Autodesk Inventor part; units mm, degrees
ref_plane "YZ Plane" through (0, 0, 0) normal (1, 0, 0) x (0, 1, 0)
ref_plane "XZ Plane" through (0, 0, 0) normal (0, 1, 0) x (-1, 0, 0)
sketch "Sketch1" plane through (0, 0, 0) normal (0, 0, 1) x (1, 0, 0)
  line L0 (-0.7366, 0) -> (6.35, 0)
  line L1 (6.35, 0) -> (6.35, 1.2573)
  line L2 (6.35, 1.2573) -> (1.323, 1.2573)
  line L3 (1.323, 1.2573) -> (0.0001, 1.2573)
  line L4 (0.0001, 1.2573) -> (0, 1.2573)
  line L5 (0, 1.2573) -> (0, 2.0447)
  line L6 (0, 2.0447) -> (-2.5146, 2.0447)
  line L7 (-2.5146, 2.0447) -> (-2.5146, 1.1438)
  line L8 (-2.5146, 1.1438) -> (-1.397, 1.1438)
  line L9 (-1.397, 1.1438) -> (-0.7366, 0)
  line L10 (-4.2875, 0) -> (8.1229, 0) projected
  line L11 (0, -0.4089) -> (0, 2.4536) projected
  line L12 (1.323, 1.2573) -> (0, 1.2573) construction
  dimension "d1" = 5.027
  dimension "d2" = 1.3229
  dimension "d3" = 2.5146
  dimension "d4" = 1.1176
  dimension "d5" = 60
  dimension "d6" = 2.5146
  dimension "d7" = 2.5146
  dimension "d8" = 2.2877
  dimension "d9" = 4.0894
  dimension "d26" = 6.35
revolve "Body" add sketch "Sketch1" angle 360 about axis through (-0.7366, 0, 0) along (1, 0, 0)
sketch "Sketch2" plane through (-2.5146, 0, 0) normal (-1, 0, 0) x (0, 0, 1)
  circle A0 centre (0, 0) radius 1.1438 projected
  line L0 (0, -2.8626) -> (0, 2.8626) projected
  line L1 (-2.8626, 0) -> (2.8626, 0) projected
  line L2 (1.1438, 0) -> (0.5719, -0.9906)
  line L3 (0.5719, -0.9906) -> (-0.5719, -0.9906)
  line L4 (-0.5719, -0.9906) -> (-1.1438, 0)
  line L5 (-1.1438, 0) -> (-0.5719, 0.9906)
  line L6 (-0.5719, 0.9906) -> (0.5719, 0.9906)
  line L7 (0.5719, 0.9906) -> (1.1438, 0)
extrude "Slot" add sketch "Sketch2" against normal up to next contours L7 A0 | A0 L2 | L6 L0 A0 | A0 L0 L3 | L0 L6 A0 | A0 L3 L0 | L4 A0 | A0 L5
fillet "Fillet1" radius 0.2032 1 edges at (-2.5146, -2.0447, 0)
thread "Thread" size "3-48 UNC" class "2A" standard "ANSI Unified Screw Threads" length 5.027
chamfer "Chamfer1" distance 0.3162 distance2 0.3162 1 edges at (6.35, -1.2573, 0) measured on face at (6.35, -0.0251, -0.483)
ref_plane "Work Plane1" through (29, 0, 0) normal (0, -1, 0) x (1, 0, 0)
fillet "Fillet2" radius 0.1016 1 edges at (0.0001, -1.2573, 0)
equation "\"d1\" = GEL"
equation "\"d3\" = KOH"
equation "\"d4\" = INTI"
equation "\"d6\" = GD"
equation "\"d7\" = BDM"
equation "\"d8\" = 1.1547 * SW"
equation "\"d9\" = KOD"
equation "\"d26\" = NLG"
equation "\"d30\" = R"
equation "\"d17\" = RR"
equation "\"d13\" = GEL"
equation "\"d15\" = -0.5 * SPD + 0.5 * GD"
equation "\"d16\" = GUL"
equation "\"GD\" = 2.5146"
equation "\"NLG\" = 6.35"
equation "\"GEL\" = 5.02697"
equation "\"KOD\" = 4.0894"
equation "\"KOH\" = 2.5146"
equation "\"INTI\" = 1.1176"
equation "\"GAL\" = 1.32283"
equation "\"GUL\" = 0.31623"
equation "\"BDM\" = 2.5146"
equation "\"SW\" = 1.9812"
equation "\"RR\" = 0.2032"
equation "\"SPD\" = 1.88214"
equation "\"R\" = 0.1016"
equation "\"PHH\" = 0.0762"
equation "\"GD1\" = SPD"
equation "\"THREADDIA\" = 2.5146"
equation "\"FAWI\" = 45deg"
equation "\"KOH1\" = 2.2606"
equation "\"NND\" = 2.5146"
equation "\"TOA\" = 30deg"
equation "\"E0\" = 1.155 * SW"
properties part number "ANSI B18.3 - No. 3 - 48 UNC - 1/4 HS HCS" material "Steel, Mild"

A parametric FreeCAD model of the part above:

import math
import FreeCAD as App
import Part
import Sketcher
from FreeCAD import Vector
Q = App.Units.Quantity


def edges_at(feature, points):
    """Names of the edges that pass closest to the given points."""
    edges = feature.Shape.Edges
    near = lambda p: min(range(len(edges)), key=lambda i: edges[i].distToShape(Part.Vertex(*p))[0])
    return sorted({f"Edge{near(p) + 1}" for p in points})

doc = App.newDocument("Part")
body = doc.addObject("PartDesign::Body", "Body")

sketch1 = body.newObject("Sketcher::SketchObject", "Sketch")
sketch1.AttachmentSupport = (doc.getObject("XY_Plane"), [""])
sketch1.MapMode = "FlatFace"
sketch1.addGeometry([
    Part.LineSegment(Vector(-1.4, 1.1, 0), Vector(-0.7, 0, 0)),
    Part.LineSegment(Vector(-0.7, 0, 0), Vector(6.3, 0, 0)),
    Part.LineSegment(Vector(6.3, 0, 0), Vector(6.3, 1.3, 0)),
    Part.LineSegment(Vector(6.3, 1.3, 0), Vector(0, 1.3, 0)),
    Part.LineSegment(Vector(0, 1.3, 0), Vector(0, 2, 0)),
    Part.LineSegment(Vector(0, 2, 0), Vector(-2.5, 2, 0)),
    Part.LineSegment(Vector(-2.5, 2, 0), Vector(-2.5, 1.1, 0)),
    Part.LineSegment(Vector(-2.5, 1.1, 0), Vector(-1.4, 1.1, 0)),
], False)
sketch1.addConstraint([
    Sketcher.Constraint("Coincident", 0, 2, 1, 1),
    Sketcher.Constraint("Coincident", 1, 2, 2, 1),
    Sketcher.Constraint("Coincident", 2, 2, 3, 1),
    Sketcher.Constraint("Coincident", 3, 2, 4, 1),
    Sketcher.Constraint("Coincident", 4, 2, 5, 1),
    Sketcher.Constraint("Coincident", 5, 2, 6, 1),
    Sketcher.Constraint("Coincident", 6, 2, 7, 1),
    Sketcher.Constraint("Coincident", 7, 2, 0, 1),
    Sketcher.Constraint("Horizontal", 1),
    Sketcher.Constraint("Vertical", 2),
    Sketcher.Constraint("Horizontal", 3),
    Sketcher.Constraint("Vertical", 4),
    Sketcher.Constraint("Horizontal", 5),
    Sketcher.Constraint("Vertical", 6),
    Sketcher.Constraint("Horizontal", 7),
    Sketcher.Constraint("PointOnObject", 0, 2, -1),
    Sketcher.Constraint("PointOnObject", 3, 2, -2),
    Sketcher.Constraint("DistanceX", 3, 2, 3, 1, Q("0.25 in")),
    Sketcher.Constraint("DistanceX", 5, 2, 5, 1, Q("0.099 in")),
    Sketcher.Constraint("DistanceX", 7, 1, 7, 2, Q("0.044 in")),
    Sketcher.Constraint("Angle", 0, Q("-59.999 deg")),
    Sketcher.Constraint("DistanceX", 1, 1, 1, 2, Q("0.279 in")),
    Sketcher.Constraint("DistanceY", 4, 1, 4, 2, Q("0.031 in")),
    Sketcher.Constraint("DistanceY", 2, 1, 2, 2, Q("0.0495 in")),
])
revolution = body.newObject("PartDesign::Revolution", "Revolution")
revolution.Profile = sketch1
revolution.ReferenceAxis = (sketch1, ["H_Axis"])
revolution.Angle = 360

sketch2 = body.newObject("Sketcher::SketchObject", "Sketch001")
sketch2.AttachmentSupport = (doc.getObject("YZ_Plane"), [""])
sketch2.MapMode = "FlatFace"
sketch2.AttachmentOffset = App.Placement(Vector(0, 0, -0.099 * 25.4), App.Rotation())
sketch2.addGeometry([
    Part.LineSegment(Vector(1, 0.6, 0), Vector(0, 1.1, 0)),
    Part.ArcOfCircle(Part.Circle(Vector(0, 0, 0), Vector(0, 0, 1), 1.1), math.radians(30), math.radians(90)),
    Part.ArcOfCircle(Part.Circle(Vector(0, 0, 0), Vector(0, 0, 1), 1.1), math.radians(90), math.radians(150)),
    Part.LineSegment(Vector(0, 1.1, 0), Vector(-1, 0.6, 0)),
    Part.ArcOfCircle(Part.Circle(Vector(0, 0, 0), Vector(0, 0, 1), 1.1), math.radians(-30), math.radians(30)),
    Part.LineSegment(Vector(1, 0.6, 0), Vector(1, -0.6, 0)),
    Part.LineSegment(Vector(-1, 0.6, 0), Vector(-1, -0.6, 0)),
    Part.ArcOfCircle(Part.Circle(Vector(0, 0, 0), Vector(0, 0, 1), 1.1), math.radians(150), math.radians(210)),
    Part.LineSegment(Vector(-1, -0.6, 0), Vector(0, -1.1, 0)),
    Part.ArcOfCircle(Part.Circle(Vector(0, 0, 0), Vector(0, 0, 1), 1.1), math.radians(-150), math.radians(-90)),
    Part.ArcOfCircle(Part.Circle(Vector(0, 0, 0), Vector(0, 0, 1), 1.1), math.radians(-90), math.radians(-30)),
    Part.LineSegment(Vector(0, -1.1, 0), Vector(1, -0.6, 0)),
], False)
sketch2.addConstraint([
    Sketcher.Constraint("Coincident", 0, 1, 1, 1),
    Sketcher.Constraint("Coincident", 1, 2, 0, 2),
    Sketcher.Constraint("Coincident", 2, 1, 3, 1),
    Sketcher.Constraint("Coincident", 3, 2, 2, 2),
    Sketcher.Constraint("Coincident", 4, 1, 5, 2),
    Sketcher.Constraint("Coincident", 5, 1, 4, 2),
    Sketcher.Constraint("Coincident", 6, 1, 7, 1),
    Sketcher.Constraint("Coincident", 7, 2, 6, 2),
    Sketcher.Constraint("Coincident", 8, 1, 9, 1),
    Sketcher.Constraint("Coincident", 9, 2, 8, 2),
    Sketcher.Constraint("Coincident", 10, 1, 11, 1),
    Sketcher.Constraint("Coincident", 11, 2, 10, 2),
    Sketcher.Constraint("Vertical", 5),
    Sketcher.Constraint("Vertical", 6),
    Sketcher.Constraint("Coincident", 1, 3, -1, 1),
    Sketcher.Constraint("Coincident", 2, 3, -1, 1),
    Sketcher.Constraint("Coincident", 4, 3, -1, 1),
    Sketcher.Constraint("Coincident", 7, 3, -1, 1),
    Sketcher.Constraint("Coincident", 9, 3, -1, 1),
    Sketcher.Constraint("Coincident", 10, 3, -1, 1),
    Sketcher.Constraint("Coincident", 2, 1, 1, 2),
    Sketcher.Constraint("Coincident", 5, 1, 0, 1),
    Sketcher.Constraint("Coincident", 6, 1, 3, 2),
    Sketcher.Constraint("Coincident", 8, 1, 7, 2),
    Sketcher.Constraint("Coincident", 10, 1, 9, 2),
    Sketcher.Constraint("PointOnObject", 1, 2, -2),
    Sketcher.Constraint("PointOnObject", 9, 2, -2),
    Sketcher.Constraint("Parallel", 0, 8),
    Sketcher.Constraint("Parallel", 3, 11),
    Sketcher.Constraint("Angle", 0, Q("150.001 deg")),
    Sketcher.Constraint("Radius", 1, 1.1438),
])
pad1 = body.newObject("PartDesign::Pad", "Pad")
pad1.Profile = sketch2
pad1.Type = "UpToFirst"
doc.recompute()

fillet = body.newObject("PartDesign::Fillet", "Fillet")
fillet.Base = (pad1, edges_at(pad1, [(-2.515, -2.045, 0)]))
fillet.Radius = Q("0.008 in")
doc.recompute()

chamfer = body.newObject("PartDesign::Chamfer", "Chamfer")
chamfer.Base = (fillet, edges_at(fillet, [(6.35, -1.257, 0)]))
chamfer.ChamferType = "Two distances"
chamfer.Size = 0.3162
chamfer.Size2 = 0.3162
doc.recompute()

fillet2 = body.newObject("PartDesign::Fillet", "Fillet001")
fillet2.Base = (chamfer, edges_at(chamfer, [(0, -1.257, 0)]))
fillet2.Radius = Q("0.004 in")

doc.recompute()
